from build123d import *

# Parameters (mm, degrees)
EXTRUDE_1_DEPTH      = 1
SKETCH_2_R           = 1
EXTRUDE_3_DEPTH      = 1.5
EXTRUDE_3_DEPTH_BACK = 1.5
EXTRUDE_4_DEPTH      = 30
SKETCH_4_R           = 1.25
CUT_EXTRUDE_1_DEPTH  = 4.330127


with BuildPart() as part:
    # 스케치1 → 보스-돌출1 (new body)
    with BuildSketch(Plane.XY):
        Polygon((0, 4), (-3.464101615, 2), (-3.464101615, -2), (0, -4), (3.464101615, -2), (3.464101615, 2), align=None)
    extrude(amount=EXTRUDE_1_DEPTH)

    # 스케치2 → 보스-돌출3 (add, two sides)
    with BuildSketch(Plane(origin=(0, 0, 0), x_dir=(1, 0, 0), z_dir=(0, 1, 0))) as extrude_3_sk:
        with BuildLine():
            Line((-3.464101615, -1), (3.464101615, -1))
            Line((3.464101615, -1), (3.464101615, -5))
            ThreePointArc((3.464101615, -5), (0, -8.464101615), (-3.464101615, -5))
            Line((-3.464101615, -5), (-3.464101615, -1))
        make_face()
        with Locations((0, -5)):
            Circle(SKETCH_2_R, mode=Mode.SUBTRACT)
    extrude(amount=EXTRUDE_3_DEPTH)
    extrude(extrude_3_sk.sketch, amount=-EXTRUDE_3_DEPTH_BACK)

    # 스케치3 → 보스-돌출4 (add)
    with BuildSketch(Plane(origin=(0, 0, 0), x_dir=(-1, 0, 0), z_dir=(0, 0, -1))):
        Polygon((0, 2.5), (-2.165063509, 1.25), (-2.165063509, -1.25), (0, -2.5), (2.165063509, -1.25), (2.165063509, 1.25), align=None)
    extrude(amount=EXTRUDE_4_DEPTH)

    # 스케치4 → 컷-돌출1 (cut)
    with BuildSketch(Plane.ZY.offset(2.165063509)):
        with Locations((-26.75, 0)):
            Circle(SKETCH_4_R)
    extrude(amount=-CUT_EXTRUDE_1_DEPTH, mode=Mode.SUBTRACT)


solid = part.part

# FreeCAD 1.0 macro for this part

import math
import FreeCAD as App
import Part
import Sketcher

V = App.Vector
Q = App.Units.Quantity


def add_polygon(sketch, points):
    """Adds a closed chain of lines whose ends are joined by coincident constraints."""
    first, n = sketch.GeometryCount, len(points)
    for a, b in zip(points, points[1:] + points[:1]):
        sketch.addGeometry(Part.LineSegment(App.Vector(*a, 0), App.Vector(*b, 0)), False)
    for i in range(n):
        sketch.addConstraint(Sketcher.Constraint("Coincident", first + i, 2, first + (i + 1) % n, 1))

doc = App.newDocument("Part")
params = doc.addObject("Spreadsheet::Sheet", "Params")
for row, (alias, value) in enumerate([
    ("sketch1_height", "4 mm"),
    ("sketch1_length", "4 mm"),
    ("pad1_length", "1 mm"),
    ("sketch2_diameter", "2 mm"),
    ("sketch2_height", "4 mm"),
    ("pad2_length", "1.5 mm"),
    ("pad2_length2", "1.5 mm"),
    ("sketch3_height", "2.5 mm"),
    ("pad3_length", "30 mm"),
    ("sketch4_diameter", "2.5 mm"),
    ("pocket1_length", "4.330127 mm"),
], start=1):
    params.set(f"A{row}", alias)
    params.set(f"B{row}", "=" + value)
    params.setAlias(f"B{row}", alias)

body = doc.addObject("PartDesign::Body", "Body")

# Sketch on XY plane
sketch1 = body.newObject("Sketcher::SketchObject", "Sketch")
sketch1.AttachmentSupport = (doc.getObject("XY_Plane"), [""])
sketch1.MapMode = "FlatFace"
add_polygon(sketch1, [(0, 4), (-3.464102, 2), (-3.464102, -2), (0, -4), (3.464102, -2), (3.464102, 2)])  # lines 0-5
sketch1.addConstraint([
    Sketcher.Constraint("Vertical", 1),
    Sketcher.Constraint("Vertical", 4),
    Sketcher.Constraint("Symmetric", 0, 2, 3, 2, -1, 1),
    Sketcher.Constraint("Symmetric", 2, 2, 5, 2, -1, 1),
    Sketcher.Constraint("PointOnObject", 2, 2, -2),
    Sketcher.Constraint("Parallel", 2, 5),
    Sketcher.Constraint("Horizontal", 1, 2, 3, 2),
    Sketcher.Constraint("DistanceY", 1, 2, 1, 1, 4.0),
    Sketcher.Constraint("Angle", 0, Q("-150 deg")),
    Sketcher.Constraint("Distance", 0, 4.0),
])
sketch1.setExpression("Constraints[13]", "Params.sketch1_height")
sketch1.setExpression("Constraints[15]", "Params.sketch1_length")
pad1 = body.newObject("PartDesign::Pad", "Pad")
pad1.Profile = sketch1
pad1.setExpression("Length", "Params.pad1_length")

# Sketch on XZ plane
sketch2 = body.newObject("Sketcher::SketchObject", "Sketch001")
sketch2.AttachmentSupport = (doc.getObject("XZ_Plane"), [""])
sketch2.MapMode = "FlatFace"
sketch2.addGeometry([
    Part.LineSegment(V(3.464102, 1, 0), V(-3.464102, 1, 0)),  # 0
    Part.LineSegment(V(-3.464102, 1, 0), V(-3.464102, 5, 0)),  # 1
    Part.ArcOfCircle(Part.Circle(V(0, 5, 0), V(0, 0, 1), 3.464102), math.radians(0), math.radians(180)),  # 2
    Part.LineSegment(V(3.464102, 5, 0), V(3.464102, 1, 0)),  # 3
    Part.Circle(V(0, 5, 0), V(0, 0, 1), 1),  # 4
], False)
sketch2.addConstraint([
    Sketcher.Constraint("Coincident", 0, 2, 1, 1),
    Sketcher.Constraint("Tangent", 1, 2, 2, 2),
    Sketcher.Constraint("Tangent", 2, 1, 3, 1),
    Sketcher.Constraint("Coincident", 3, 2, 0, 1),
    Sketcher.Constraint("Horizontal", 0),
    Sketcher.Constraint("Vertical", 1),
    Sketcher.Constraint("Vertical", 3),
    Sketcher.Constraint("Coincident", 4, 3, 2, 3),
    Sketcher.Constraint("PointOnObject", 2, 3, -2),
    Sketcher.Constraint("Diameter", 4, 2.0),
    Sketcher.Constraint("DistanceY", 1, 1, 1, 2, 4.0),
    Sketcher.Constraint("DistanceY", -1, 1, 2, 3, 5.0),
    Sketcher.Constraint("Radius", 2, 3.464102),
])
sketch2.setExpression("Constraints[9]", "Params.sketch2_diameter")
sketch2.setExpression("Constraints[10]", "Params.sketch2_height")
pad2 = body.newObject("PartDesign::Pad", "Pad001")
pad2.Profile = sketch2
pad2.Type = "TwoLengths"
pad2.setExpression("Length", "Params.pad2_length")
pad2.setExpression("Length2", "Params.pad2_length2")
pad2.Reversed = True

# Sketch on XY plane
sketch3 = body.newObject("Sketcher::SketchObject", "Sketch002")
sketch3.AttachmentSupport = (doc.getObject("XY_Plane"), [""])
sketch3.MapMode = "FlatFace"
add_polygon(sketch3, [(0, 2.5), (2.165064, 1.25), (2.165064, -1.25), (0, -2.5), (-2.165064, -1.25), (-2.165064, 1.25)])  # lines 0-5
sketch3.addConstraint([
    Sketcher.Constraint("Vertical", 1),
    Sketcher.Constraint("Vertical", 4),
    Sketcher.Constraint("Symmetric", 0, 2, 3, 2, -1, 1),
    Sketcher.Constraint("Symmetric", 2, 2, 5, 2, -1, 1),
    Sketcher.Constraint("PointOnObject", 2, 2, -2),
    Sketcher.Constraint("Parallel", 2, 5),
    Sketcher.Constraint("Horizontal", 1, 2, 3, 2),
    Sketcher.Constraint("Angle", 0, Q("-30 deg")),
    Sketcher.Constraint("DistanceY", 1, 2, 1, 1, 2.5),
    Sketcher.Constraint("DistanceY", 2, 2, 5, 2, 5.0),
])
sketch3.setExpression("Constraints[14]", "Params.sketch3_height")
pad3 = body.newObject("PartDesign::Pad", "Pad002")
pad3.Profile = sketch3
pad3.setExpression("Length", "Params.pad3_length")
pad3.Reversed = True

# Sketch on YZ plane
sketch4 = body.newObject("Sketcher::SketchObject", "Sketch003")
sketch4.AttachmentSupport = (doc.getObject("YZ_Plane"), [""])
sketch4.MapMode = "FlatFace"
sketch4.AttachmentOffset = App.Placement(V(0, 0, -2.165064), App.Rotation())
sketch4.addGeometry(Part.Circle(V(0, -26.75, 0), V(0, 0, 1), 1.25), False)
sketch4.addConstraint([
    Sketcher.Constraint("PointOnObject", 0, 3, -2),
    Sketcher.Constraint("Diameter", 0, 2.5),
    Sketcher.Constraint("DistanceY", 0, 3, -1, 1, 26.75),
])
sketch4.setExpression("Constraints[1]", "Params.sketch4_diameter")
pocket1 = body.newObject("PartDesign::Pocket", "Pocket")
pocket1.Profile = sketch4
pocket1.setExpression("Length", "Params.pocket1_length")
pocket1.Reversed = True

doc.recompute()
